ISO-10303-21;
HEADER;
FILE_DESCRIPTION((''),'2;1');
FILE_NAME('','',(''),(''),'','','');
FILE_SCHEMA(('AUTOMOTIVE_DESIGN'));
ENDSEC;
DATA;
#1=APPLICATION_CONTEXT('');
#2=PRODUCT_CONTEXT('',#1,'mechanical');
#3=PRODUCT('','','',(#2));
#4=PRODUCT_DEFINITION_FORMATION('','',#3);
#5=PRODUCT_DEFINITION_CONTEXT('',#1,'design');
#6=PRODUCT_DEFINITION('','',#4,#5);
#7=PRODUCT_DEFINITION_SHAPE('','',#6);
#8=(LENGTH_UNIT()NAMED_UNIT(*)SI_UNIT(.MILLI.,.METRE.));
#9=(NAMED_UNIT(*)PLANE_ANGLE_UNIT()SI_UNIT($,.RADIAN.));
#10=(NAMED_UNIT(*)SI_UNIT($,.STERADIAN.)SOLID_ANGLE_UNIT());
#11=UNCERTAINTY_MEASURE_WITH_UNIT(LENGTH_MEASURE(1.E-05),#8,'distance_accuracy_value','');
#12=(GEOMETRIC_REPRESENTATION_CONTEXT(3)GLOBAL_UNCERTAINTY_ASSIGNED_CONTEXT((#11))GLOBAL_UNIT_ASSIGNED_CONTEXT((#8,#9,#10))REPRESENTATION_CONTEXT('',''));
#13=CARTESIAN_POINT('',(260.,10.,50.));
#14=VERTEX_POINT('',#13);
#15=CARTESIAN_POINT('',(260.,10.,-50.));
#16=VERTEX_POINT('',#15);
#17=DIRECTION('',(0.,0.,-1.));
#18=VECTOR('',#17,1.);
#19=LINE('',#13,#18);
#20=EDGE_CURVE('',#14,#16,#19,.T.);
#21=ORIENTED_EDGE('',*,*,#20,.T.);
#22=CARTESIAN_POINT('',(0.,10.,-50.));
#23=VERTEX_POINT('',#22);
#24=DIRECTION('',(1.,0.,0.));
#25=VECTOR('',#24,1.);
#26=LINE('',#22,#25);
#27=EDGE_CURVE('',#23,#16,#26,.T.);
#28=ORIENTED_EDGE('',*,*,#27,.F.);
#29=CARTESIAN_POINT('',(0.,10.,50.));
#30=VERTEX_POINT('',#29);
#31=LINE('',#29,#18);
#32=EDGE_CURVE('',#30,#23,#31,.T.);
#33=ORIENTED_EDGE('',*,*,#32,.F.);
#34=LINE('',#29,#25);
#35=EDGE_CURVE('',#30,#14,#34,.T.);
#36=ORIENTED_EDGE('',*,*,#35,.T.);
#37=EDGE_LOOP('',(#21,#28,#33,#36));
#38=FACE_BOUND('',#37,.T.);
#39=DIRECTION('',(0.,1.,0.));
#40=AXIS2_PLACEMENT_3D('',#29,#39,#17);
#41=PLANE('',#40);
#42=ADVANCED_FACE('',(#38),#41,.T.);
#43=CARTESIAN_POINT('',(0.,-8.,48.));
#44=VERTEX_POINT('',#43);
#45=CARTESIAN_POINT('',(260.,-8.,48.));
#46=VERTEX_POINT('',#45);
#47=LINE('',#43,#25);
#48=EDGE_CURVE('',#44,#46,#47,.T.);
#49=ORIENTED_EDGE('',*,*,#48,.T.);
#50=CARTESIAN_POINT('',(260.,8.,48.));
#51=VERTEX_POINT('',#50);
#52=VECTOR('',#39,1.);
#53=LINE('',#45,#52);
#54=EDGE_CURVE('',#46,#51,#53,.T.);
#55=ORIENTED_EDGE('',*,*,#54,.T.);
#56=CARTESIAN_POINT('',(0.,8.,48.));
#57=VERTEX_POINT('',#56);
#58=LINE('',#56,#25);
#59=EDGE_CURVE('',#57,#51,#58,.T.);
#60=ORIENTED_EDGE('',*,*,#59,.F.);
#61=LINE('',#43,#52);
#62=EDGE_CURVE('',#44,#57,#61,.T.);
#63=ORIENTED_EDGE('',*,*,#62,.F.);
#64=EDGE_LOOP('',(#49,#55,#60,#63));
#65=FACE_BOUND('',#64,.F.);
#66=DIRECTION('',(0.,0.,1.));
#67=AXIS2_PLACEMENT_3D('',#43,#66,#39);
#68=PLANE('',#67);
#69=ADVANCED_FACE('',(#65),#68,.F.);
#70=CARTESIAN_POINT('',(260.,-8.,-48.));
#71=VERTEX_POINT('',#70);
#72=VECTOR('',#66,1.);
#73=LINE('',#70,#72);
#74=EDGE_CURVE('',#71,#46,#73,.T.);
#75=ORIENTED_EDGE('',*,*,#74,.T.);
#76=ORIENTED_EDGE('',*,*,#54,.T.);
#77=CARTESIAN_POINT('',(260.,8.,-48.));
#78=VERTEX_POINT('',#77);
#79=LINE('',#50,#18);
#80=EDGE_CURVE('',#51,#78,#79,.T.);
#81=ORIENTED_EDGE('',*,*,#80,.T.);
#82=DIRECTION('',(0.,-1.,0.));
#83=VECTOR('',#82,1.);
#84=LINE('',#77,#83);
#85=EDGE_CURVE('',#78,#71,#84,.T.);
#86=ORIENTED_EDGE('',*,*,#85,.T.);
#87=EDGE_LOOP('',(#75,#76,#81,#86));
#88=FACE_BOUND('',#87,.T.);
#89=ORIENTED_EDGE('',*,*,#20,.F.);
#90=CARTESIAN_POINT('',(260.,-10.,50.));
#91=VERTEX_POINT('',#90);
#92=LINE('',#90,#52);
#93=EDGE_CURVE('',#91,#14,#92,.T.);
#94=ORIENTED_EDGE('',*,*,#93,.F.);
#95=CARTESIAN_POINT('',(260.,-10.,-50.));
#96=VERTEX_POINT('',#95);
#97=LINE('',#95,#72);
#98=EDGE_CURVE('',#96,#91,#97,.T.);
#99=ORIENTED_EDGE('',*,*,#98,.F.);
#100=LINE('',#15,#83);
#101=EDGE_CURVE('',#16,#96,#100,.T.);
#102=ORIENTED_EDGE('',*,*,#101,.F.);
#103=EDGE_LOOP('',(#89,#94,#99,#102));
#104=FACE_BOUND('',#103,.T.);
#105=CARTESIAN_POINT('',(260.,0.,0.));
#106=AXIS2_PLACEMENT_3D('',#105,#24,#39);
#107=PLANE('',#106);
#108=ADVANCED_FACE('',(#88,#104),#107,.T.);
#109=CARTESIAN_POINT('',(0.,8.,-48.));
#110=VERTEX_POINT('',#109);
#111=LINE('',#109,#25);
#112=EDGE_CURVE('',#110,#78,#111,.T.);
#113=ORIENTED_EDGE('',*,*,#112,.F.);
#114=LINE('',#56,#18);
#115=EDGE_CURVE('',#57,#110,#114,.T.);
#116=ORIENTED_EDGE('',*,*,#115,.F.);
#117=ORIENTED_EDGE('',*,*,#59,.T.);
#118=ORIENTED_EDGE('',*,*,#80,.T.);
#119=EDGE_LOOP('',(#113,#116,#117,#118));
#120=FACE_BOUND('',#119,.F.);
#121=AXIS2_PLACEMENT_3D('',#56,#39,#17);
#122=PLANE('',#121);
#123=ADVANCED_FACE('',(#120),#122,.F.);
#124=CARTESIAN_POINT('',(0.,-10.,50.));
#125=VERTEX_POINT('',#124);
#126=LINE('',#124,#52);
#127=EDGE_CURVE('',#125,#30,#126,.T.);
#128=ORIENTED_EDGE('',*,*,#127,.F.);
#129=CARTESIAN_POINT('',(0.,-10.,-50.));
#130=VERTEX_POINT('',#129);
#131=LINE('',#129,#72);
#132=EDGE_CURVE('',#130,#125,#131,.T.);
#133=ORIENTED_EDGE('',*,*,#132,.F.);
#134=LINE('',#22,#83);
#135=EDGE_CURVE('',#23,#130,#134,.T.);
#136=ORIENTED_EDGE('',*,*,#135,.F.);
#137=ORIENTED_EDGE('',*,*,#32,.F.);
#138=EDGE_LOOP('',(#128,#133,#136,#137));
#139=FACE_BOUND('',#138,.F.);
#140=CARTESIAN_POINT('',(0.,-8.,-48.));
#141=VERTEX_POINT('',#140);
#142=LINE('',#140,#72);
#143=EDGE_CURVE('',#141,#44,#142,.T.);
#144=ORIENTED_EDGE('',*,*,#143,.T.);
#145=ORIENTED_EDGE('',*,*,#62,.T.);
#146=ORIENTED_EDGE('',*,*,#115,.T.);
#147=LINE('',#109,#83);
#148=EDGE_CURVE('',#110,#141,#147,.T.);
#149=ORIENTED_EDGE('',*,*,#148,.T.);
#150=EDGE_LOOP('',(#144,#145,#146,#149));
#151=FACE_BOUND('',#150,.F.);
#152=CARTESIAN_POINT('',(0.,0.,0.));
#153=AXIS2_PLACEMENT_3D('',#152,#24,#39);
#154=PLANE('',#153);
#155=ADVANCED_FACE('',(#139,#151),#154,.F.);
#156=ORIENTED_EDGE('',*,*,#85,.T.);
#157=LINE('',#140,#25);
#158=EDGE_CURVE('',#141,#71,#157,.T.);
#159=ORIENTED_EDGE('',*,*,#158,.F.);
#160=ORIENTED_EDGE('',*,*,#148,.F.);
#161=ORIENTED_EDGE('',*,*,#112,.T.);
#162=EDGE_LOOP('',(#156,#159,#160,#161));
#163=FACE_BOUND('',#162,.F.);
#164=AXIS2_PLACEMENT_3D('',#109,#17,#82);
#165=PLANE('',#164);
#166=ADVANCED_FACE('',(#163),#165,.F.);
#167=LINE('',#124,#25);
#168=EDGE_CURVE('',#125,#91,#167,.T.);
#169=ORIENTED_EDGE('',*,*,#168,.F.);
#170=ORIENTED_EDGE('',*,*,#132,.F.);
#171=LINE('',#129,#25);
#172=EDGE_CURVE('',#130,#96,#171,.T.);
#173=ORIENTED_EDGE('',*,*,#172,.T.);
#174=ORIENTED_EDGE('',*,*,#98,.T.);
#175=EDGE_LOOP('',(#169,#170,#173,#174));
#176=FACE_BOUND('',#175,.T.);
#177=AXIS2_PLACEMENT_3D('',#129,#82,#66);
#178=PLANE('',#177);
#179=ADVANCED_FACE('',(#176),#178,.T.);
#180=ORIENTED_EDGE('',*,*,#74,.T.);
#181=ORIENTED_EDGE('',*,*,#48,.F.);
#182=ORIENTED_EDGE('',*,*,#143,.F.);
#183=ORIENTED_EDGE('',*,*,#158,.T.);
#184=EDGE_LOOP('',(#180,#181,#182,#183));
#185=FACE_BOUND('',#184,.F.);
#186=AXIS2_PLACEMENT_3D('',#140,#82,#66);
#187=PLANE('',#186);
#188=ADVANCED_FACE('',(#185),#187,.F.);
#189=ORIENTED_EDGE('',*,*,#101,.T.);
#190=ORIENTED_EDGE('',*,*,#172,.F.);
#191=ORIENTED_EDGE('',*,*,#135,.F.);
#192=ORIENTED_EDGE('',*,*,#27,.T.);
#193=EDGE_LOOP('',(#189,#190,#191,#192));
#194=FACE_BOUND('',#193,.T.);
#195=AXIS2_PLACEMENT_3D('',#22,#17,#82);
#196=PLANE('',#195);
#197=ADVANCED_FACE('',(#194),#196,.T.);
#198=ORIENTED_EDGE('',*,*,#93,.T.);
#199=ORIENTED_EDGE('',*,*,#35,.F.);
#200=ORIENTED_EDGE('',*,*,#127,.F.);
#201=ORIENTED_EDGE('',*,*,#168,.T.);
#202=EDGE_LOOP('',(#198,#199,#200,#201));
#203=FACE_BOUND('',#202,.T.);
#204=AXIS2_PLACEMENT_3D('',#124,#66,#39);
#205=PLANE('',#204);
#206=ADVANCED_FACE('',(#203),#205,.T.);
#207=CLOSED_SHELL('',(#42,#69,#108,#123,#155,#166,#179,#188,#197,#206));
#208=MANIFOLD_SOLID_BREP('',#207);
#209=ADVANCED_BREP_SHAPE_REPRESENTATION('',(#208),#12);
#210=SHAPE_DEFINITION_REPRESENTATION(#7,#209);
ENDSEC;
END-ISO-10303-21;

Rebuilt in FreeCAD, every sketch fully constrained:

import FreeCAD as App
import Part
import Sketcher

V = App.Vector
Q = App.Units.Quantity

doc = App.newDocument("Part")
body = doc.addObject("PartDesign::Body", "Body")

# Sketch on YZ plane
sketch1 = body.newObject("Sketcher::SketchObject", "Sketch")
sketch1.AttachmentSupport = (doc.getObject("YZ_Plane"), [""])
sketch1.MapMode = "FlatFace"
sketch1.addGeometry([
    Part.LineSegment(V(10, 50, 0), V(-10, 50, 0)),  # 0
    Part.LineSegment(V(-10, 50, 0), V(-10, -50, 0)),  # 1
    Part.LineSegment(V(-10, -50, 0), V(10, -50, 0)),  # 2
    Part.LineSegment(V(10, -50, 0), V(10, 50, 0)),  # 3
    Part.LineSegment(V(-8, -48, 0), V(-8, 48, 0)),  # 4
    Part.LineSegment(V(-8, 48, 0), V(8, 48, 0)),  # 5
    Part.LineSegment(V(8, 48, 0), V(8, -48, 0)),  # 6
    Part.LineSegment(V(8, -48, 0), V(-8, -48, 0)),  # 7
], False)
sketch1.addConstraint([
    Sketcher.Constraint("Coincident", 0, 2, 1, 1),
    Sketcher.Constraint("Coincident", 1, 2, 2, 1),
    Sketcher.Constraint("Coincident", 2, 2, 3, 1),
    Sketcher.Constraint("Coincident", 3, 2, 0, 1),
    Sketcher.Constraint("Coincident", 4, 2, 5, 1),
    Sketcher.Constraint("Coincident", 5, 2, 6, 1),
    Sketcher.Constraint("Coincident", 6, 2, 7, 1),
    Sketcher.Constraint("Coincident", 7, 2, 4, 1),
    Sketcher.Constraint("Horizontal", 0),
    Sketcher.Constraint("Vertical", 1),
    Sketcher.Constraint("Horizontal", 2),
    Sketcher.Constraint("Vertical", 3),
    Sketcher.Constraint("Vertical", 4),
    Sketcher.Constraint("Horizontal", 5),
    Sketcher.Constraint("Vertical", 6),
    Sketcher.Constraint("Horizontal", 7),
    Sketcher.Constraint("Symmetric", 0, 2, 2, 2, -1, 1),
    Sketcher.Constraint("Symmetric", 4, 2, 6, 2, -1, 1),
    Sketcher.Constraint("DistanceX", 0, 2, 0, 1, Q("20 mm")),
    Sketcher.Constraint("DistanceX", 5, 1, 5, 2, Q("16 mm")),
    Sketcher.Constraint("DistanceY", 1, 2, 1, 1, Q("100 mm")),
    Sketcher.Constraint("DistanceY", 4, 1, 4, 2, Q("96 mm")),
])
pad1 = body.newObject("PartDesign::Pad", "Pad")
pad1.Profile = sketch1
pad1.Length = 260

doc.recompute()
